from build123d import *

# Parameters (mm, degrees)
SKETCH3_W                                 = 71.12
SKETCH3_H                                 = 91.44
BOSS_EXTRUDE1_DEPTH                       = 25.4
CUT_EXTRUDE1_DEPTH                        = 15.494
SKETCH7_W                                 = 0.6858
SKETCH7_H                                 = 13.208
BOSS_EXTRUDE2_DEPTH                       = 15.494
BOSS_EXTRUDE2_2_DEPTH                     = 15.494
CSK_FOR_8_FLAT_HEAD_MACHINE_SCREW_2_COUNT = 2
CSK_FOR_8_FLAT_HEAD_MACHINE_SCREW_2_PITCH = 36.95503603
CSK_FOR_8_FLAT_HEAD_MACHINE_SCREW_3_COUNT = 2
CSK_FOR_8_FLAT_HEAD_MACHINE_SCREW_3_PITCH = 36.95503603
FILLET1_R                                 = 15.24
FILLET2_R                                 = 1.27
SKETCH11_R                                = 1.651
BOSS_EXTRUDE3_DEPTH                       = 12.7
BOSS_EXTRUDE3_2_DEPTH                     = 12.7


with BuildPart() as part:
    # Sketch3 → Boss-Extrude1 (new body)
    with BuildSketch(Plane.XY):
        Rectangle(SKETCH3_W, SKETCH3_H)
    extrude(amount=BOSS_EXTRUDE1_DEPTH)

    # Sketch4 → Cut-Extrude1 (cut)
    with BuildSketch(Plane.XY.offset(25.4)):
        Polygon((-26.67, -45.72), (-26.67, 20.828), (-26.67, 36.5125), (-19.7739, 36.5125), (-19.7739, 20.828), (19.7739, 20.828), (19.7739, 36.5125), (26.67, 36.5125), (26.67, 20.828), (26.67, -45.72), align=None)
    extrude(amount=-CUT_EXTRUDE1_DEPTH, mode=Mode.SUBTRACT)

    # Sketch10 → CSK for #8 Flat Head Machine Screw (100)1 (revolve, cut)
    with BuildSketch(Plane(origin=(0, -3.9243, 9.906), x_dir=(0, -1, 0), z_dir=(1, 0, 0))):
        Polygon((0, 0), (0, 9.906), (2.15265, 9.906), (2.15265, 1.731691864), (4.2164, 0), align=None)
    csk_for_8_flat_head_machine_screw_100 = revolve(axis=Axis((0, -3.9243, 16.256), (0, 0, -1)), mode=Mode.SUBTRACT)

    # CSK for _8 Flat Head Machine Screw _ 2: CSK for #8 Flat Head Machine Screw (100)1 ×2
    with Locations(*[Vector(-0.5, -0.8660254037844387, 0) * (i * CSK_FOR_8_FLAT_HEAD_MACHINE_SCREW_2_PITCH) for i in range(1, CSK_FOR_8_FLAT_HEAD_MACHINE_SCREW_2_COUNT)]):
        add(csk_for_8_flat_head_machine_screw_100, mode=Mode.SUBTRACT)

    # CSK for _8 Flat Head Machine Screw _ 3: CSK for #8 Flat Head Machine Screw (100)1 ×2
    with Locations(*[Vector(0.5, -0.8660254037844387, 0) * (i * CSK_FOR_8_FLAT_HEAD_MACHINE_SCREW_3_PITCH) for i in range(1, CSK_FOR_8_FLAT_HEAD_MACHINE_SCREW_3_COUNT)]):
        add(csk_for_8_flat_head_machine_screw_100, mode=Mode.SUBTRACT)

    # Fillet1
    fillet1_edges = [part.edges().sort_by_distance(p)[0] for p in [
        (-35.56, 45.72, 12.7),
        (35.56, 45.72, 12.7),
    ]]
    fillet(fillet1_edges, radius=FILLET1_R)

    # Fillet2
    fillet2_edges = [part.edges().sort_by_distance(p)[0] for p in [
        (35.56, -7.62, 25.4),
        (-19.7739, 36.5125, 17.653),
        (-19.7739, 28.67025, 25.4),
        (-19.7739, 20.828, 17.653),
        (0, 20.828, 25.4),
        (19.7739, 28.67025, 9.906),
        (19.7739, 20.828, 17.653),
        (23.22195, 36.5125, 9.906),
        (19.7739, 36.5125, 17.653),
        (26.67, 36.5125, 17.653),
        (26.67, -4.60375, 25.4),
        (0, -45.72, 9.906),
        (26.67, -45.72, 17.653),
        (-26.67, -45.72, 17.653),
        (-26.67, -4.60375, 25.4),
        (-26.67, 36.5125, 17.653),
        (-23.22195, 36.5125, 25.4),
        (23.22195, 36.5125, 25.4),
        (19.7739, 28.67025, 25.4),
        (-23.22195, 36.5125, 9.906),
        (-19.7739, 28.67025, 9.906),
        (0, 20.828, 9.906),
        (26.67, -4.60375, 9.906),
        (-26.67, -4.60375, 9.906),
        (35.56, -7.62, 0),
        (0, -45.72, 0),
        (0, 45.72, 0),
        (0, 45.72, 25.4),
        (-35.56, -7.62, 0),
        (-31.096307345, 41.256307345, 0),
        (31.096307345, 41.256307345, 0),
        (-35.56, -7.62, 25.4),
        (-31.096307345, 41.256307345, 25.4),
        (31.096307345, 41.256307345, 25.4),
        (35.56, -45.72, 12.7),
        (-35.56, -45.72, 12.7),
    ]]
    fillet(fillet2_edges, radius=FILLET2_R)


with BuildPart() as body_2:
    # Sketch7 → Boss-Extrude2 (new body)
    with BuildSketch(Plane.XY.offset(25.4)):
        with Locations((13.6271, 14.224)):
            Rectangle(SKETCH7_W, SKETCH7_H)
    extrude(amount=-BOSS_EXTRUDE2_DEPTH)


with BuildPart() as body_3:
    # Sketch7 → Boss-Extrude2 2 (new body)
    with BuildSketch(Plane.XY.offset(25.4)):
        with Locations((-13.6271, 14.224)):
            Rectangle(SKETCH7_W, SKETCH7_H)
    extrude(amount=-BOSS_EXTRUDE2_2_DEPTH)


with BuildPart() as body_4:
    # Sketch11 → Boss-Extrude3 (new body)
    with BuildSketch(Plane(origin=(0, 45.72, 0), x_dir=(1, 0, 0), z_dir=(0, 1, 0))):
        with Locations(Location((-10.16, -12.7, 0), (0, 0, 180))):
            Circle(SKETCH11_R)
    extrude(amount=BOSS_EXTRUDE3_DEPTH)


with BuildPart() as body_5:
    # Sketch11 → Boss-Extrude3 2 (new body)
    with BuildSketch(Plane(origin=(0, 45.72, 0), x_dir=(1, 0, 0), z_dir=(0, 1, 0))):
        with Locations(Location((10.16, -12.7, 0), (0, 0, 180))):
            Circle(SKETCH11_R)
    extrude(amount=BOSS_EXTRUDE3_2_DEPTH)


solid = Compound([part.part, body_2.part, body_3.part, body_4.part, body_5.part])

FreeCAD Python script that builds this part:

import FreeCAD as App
import Part
import Sketcher
Q = App.Units.Quantity


def edges_at(feature, points):
    """Names of the edges that pass closest to the given points."""
    edges = feature.Shape.Edges
    near = lambda p: min(range(len(edges)), key=lambda i: edges[i].distToShape(Part.Vertex(*p))[0])
    return sorted({f"Edge{near(p) + 1}" for p in points})

doc = App.newDocument("Part")
body = doc.addObject("PartDesign::Body", "Body")

# Sketch on XY plane
sketch1 = body.newObject("Sketcher::SketchObject", "Sketch")
sketch1.AttachmentSupport = (doc.getObject("XY_Plane"), [""])
sketch1.MapMode = "FlatFace"
sketch1.addGeometry([
    Part.LineSegment(App.Vector(-35.56, 45.72, 0), App.Vector(-35.56, -45.72, 0)),
    Part.LineSegment(App.Vector(-35.56, -45.72, 0), App.Vector(35.56, -45.72, 0)),
    Part.LineSegment(App.Vector(35.56, -45.72, 0), App.Vector(35.56, 45.72, 0)),
    Part.LineSegment(App.Vector(35.56, 45.72, 0), App.Vector(-35.56, 45.72, 0)),
], False)
sketch1.addConstraint([
    Sketcher.Constraint("Coincident", 0, 2, 1, 1),
    Sketcher.Constraint("Coincident", 1, 2, 2, 1),
    Sketcher.Constraint("Coincident", 2, 2, 3, 1),
    Sketcher.Constraint("Coincident", 3, 2, 0, 1),
    Sketcher.Constraint("Vertical", 0),
    Sketcher.Constraint("Horizontal", 1),
    Sketcher.Constraint("Vertical", 2),
    Sketcher.Constraint("Horizontal", 3),
    Sketcher.Constraint("Symmetric", 0, 2, 2, 2, -1, 1),
    Sketcher.Constraint("DistanceX", 1, 1, 1, 2, Q("2.8 in")),
    Sketcher.Constraint("DistanceY", 0, 2, 0, 1, Q("3.6 in")),
])
pad1 = body.newObject("PartDesign::Pad", "Pad")
pad1.Profile = sketch1
pad1.Length = Q("1 in")

# Sketch on XY plane
sketch2 = body.newObject("Sketcher::SketchObject", "Sketch001")
sketch2.AttachmentSupport = (doc.getObject("XY_Plane"), [""])
sketch2.MapMode = "FlatFace"
sketch2.AttachmentOffset = App.Placement(App.Vector(0, 0, 1 * 25.4), App.Rotation())
sketch2.addGeometry([
    Part.LineSegment(App.Vector(-26.67, 36.5125, 0), App.Vector(-26.67, -45.72, 0)),  # 0
    Part.LineSegment(App.Vector(-26.67, -45.72, 0), App.Vector(26.67, -45.72, 0)),  # 1
    Part.LineSegment(App.Vector(26.67, -45.72, 0), App.Vector(26.67, 36.5125, 0)),  # 2
    Part.LineSegment(App.Vector(26.67, 36.5125, 0), App.Vector(19.7739, 36.5125, 0)),  # 3
    Part.LineSegment(App.Vector(19.7739, 36.5125, 0), App.Vector(19.7739, 20.828, 0)),  # 4
    Part.LineSegment(App.Vector(19.7739, 20.828, 0), App.Vector(-19.7739, 20.828, 0)),  # 5
    Part.LineSegment(App.Vector(-19.7739, 20.828, 0), App.Vector(-19.7739, 36.5125, 0)),  # 6
    Part.LineSegment(App.Vector(-19.7739, 36.5125, 0), App.Vector(-26.67, 36.5125, 0)),  # 7
], False)
sketch2.addConstraint([
    Sketcher.Constraint("Coincident", 0, 2, 1, 1),
    Sketcher.Constraint("Coincident", 1, 2, 2, 1),
    Sketcher.Constraint("Coincident", 2, 2, 3, 1),
    Sketcher.Constraint("Coincident", 3, 2, 4, 1),
    Sketcher.Constraint("Coincident", 4, 2, 5, 1),
    Sketcher.Constraint("Coincident", 5, 2, 6, 1),
    Sketcher.Constraint("Coincident", 6, 2, 7, 1),
    Sketcher.Constraint("Coincident", 7, 2, 0, 1),
    Sketcher.Constraint("Vertical", 0),
    Sketcher.Constraint("Horizontal", 1),
    Sketcher.Constraint("Vertical", 2),
    Sketcher.Constraint("Horizontal", 3),
    Sketcher.Constraint("Vertical", 4),
    Sketcher.Constraint("Horizontal", 5),
    Sketcher.Constraint("Vertical", 6),
    Sketcher.Constraint("Horizontal", 7),
    Sketcher.Constraint("Symmetric", 3, 2, 6, 2, -2),
    Sketcher.Constraint("Equal", 3, 7),
    Sketcher.Constraint("DistanceX", 1, 1, 1, 2, Q("2.1 in")),
    Sketcher.Constraint("DistanceY", 0, 2, -1, 1, Q("1.8 in")),
    Sketcher.Constraint("DistanceX", 5, 2, 5, 1, Q("1.557 in")),
    Sketcher.Constraint("DistanceY", -1, 1, 4, 2, Q("0.82 in")),
    Sketcher.Constraint("DistanceY", 0, 2, 0, 1, Q("3.2375 in")),
])
pocket1 = body.newObject("PartDesign::Pocket", "Pocket")
pocket1.Profile = sketch2
pocket1.Length = Q("0.61 in")

# Sketch on YZ plane
sketch3 = body.newObject("Sketcher::SketchObject", "Sketch002")
sketch3.AttachmentSupport = (doc.getObject("YZ_Plane"), [""])
sketch3.MapMode = "FlatFace"
sketch3.addGeometry([
    Part.LineSegment(App.Vector(-3.9243, 0, 0), App.Vector(-3.9243, 9.906, 0)),  # 0
    Part.LineSegment(App.Vector(-3.9243, 9.906, 0), App.Vector(-8.1407, 9.906, 0)),  # 1
    Part.LineSegment(App.Vector(-8.1407, 9.906, 0), App.Vector(-6.07695, 8.174308, 0)),  # 2
    Part.LineSegment(App.Vector(-6.07695, 8.174308, 0), App.Vector(-6.07695, 0, 0)),  # 3
    Part.LineSegment(App.Vector(-6.07695, 0, 0), App.Vector(-3.9243, 0, 0)),  # 4
], False)
sketch3.addGeometry(Part.LineSegment(App.Vector(-3.9243, 9.906, 0), App.Vector(-3.9243, 0, 0)), True)  # axis
sketch3.addConstraint([
    Sketcher.Constraint("Coincident", 0, 2, 1, 1),
    Sketcher.Constraint("Coincident", 1, 2, 2, 1),
    Sketcher.Constraint("Coincident", 2, 2, 3, 1),
    Sketcher.Constraint("Coincident", 3, 2, 4, 1),
    Sketcher.Constraint("Coincident", 4, 2, 0, 1),
    Sketcher.Constraint("Vertical", 0),
    Sketcher.Constraint("Horizontal", 1),
    Sketcher.Constraint("Vertical", 3),
    Sketcher.Constraint("Horizontal", 4),
    Sketcher.Constraint("Vertical", 5),
    Sketcher.Constraint("Coincident", 5, 1, 0, 2),
    Sketcher.Constraint("PointOnObject", 3, 2, -1),
    Sketcher.Constraint("PointOnObject", 5, 2, -1),
    Sketcher.Constraint("Angle", 2, Q("-40 deg")),
    Sketcher.Constraint("DistanceY", 0, 1, 0, 2, Q("0.39 in")),
    Sketcher.Constraint("DistanceX", 1, 2, 1, 1, Q("0.166 in")),
    Sketcher.Constraint("DistanceX", 0, 2, -1, 1, Q("0.1545 in")),
    Sketcher.Constraint("DistanceX", 4, 1, 4, 2, Q("2.15265 mm")),
])
groove = body.newObject("PartDesign::Groove", "Groove")
groove.Profile = sketch3
groove.ReferenceAxis = (sketch3, ["Axis0"])
groove.Angle = 360
doc.recompute()

datumline = body.newObject("PartDesign::Line", "DatumLine")
datumline.Placement = App.Placement(App.Vector(0, 0, 0), App.Rotation(App.Vector(0, 0, 1), App.Vector(-0.5, -0.866025404, 0)))
linearpattern = body.newObject("PartDesign::LinearPattern", "LinearPattern")
linearpattern.Originals = [groove]
linearpattern.Direction = (datumline, [""])
linearpattern.Mode = "offset"
linearpattern.Offset = 36.955036
linearpattern.Occurrences = 2
body.Tip = linearpattern
doc.recompute()

datumline2 = body.newObject("PartDesign::Line", "DatumLine001")
datumline2.Placement = App.Placement(App.Vector(0, 0, 0), App.Rotation(App.Vector(0, 0, 1), App.Vector(0.5, -0.866025404, 0)))
linearpattern2 = body.newObject("PartDesign::LinearPattern", "LinearPattern001")
linearpattern2.Originals = [groove]
linearpattern2.Direction = (datumline2, [""])
linearpattern2.Mode = "offset"
linearpattern2.Offset = 36.955036
linearpattern2.Occurrences = 2
body.Tip = linearpattern2
doc.recompute()

fillet = body.newObject("PartDesign::Fillet", "Fillet")
fillet.Base = (linearpattern2, edges_at(linearpattern2, [(-35.56, 45.72, 12.7), (35.56, 45.72, 12.7)]))
fillet.Radius = Q("0.6 in")
doc.recompute()

fillet2 = body.newObject("PartDesign::Fillet", "Fillet001")
fillet2.Base = (fillet, edges_at(fillet, [
    (35.56, -7.62, 25.4),
    (-19.774, 36.513, 17.653),
    (-19.774, 28.67, 25.4),
    (-19.774, 20.828, 17.653),
    (0, 20.828, 25.4),
    (19.774, 28.67, 9.906),
    (19.774, 20.828, 17.653),
    (23.222, 36.513, 9.906),
    (19.774, 36.513, 17.653),
    (26.67, 36.513, 17.653),
    (26.67, -4.604, 25.4),
    (0, -45.72, 9.906),
    (26.67, -45.72, 17.653),
    (-26.67, -45.72, 17.653),
    (-26.67, -4.604, 25.4),
    (-26.67, 36.513, 17.653),
    (-23.222, 36.513, 25.4),
    (23.222, 36.513, 25.4),
    (19.774, 28.67, 25.4),
    (-23.222, 36.513, 9.906),
    (-19.774, 28.67, 9.906),
    (0, 20.828, 9.906),
    (26.67, -4.604, 9.906),
    (-26.67, -4.604, 9.906),
    (35.56, -7.62, 0),
    (0, -45.72, 0),
    (0, 45.72, 0),
    (0, 45.72, 25.4),
    (-35.56, -7.62, 0),
    (-31.096, 41.256, 0),
    (31.096, 41.256, 0),
    (-35.56, -7.62, 25.4),
    (-31.096, 41.256, 25.4),
    (31.096, 41.256, 25.4),
    (35.56, -45.72, 12.7),
    (-35.56, -45.72, 12.7),
]))
fillet2.Radius = Q("0.05 in")
body2 = doc.addObject("PartDesign::Body", "Body001")

# Sketch on XY plane
sketch4 = body2.newObject("Sketcher::SketchObject", "Sketch003")
sketch4.AttachmentSupport = (doc.getObject("XY_Plane001"), [""])
sketch4.MapMode = "FlatFace"
sketch4.AttachmentOffset = App.Placement(App.Vector(0, 0, 1 * 25.4), App.Rotation())
sketch4.addGeometry([
    Part.LineSegment(App.Vector(13.2842, 20.828, 0), App.Vector(13.2842, 7.62, 0)),
    Part.LineSegment(App.Vector(13.2842, 7.62, 0), App.Vector(13.97, 7.62, 0)),
    Part.LineSegment(App.Vector(13.97, 7.62, 0), App.Vector(13.97, 20.828, 0)),
    Part.LineSegment(App.Vector(13.97, 20.828, 0), App.Vector(13.2842, 20.828, 0)),
], False)
sketch4.addConstraint([
    Sketcher.Constraint("Coincident", 0, 2, 1, 1),
    Sketcher.Constraint("Coincident", 1, 2, 2, 1),
    Sketcher.Constraint("Coincident", 2, 2, 3, 1),
    Sketcher.Constraint("Coincident", 3, 2, 0, 1),
    Sketcher.Constraint("Vertical", 0),
    Sketcher.Constraint("Horizontal", 1),
    Sketcher.Constraint("Vertical", 2),
    Sketcher.Constraint("Horizontal", 3),
    Sketcher.Constraint("DistanceY", 0, 2, 0, 1, Q("0.52 in")),
    Sketcher.Constraint("DistanceY", -1, 1, 0, 2, Q("0.3 in")),
    Sketcher.Constraint("DistanceX", 1, 1, 1, 2, Q("0.027 in")),
    Sketcher.Constraint("DistanceX", -1, 1, 1, 2, Q("0.55 in")),
])
pad2 = body2.newObject("PartDesign::Pad", "Pad001")
pad2.Profile = sketch4
pad2.Length = Q("0.61 in")
pad2.Reversed = True
body3 = doc.addObject("PartDesign::Body", "Body002")

# Sketch on XY plane
sketch5 = body3.newObject("Sketcher::SketchObject", "Sketch004")
sketch5.AttachmentSupport = (doc.getObject("XY_Plane002"), [""])
sketch5.MapMode = "FlatFace"
sketch5.AttachmentOffset = App.Placement(App.Vector(0, 0, 1 * 25.4), App.Rotation())
sketch5.addGeometry([
    Part.LineSegment(App.Vector(-13.97, 20.828, 0), App.Vector(-13.97, 7.62, 0)),
    Part.LineSegment(App.Vector(-13.97, 7.62, 0), App.Vector(-13.2842, 7.62, 0)),
    Part.LineSegment(App.Vector(-13.2842, 7.62, 0), App.Vector(-13.2842, 20.828, 0)),
    Part.LineSegment(App.Vector(-13.2842, 20.828, 0), App.Vector(-13.97, 20.828, 0)),
], False)
sketch5.addConstraint([
    Sketcher.Constraint("Coincident", 0, 2, 1, 1),
    Sketcher.Constraint("Coincident", 1, 2, 2, 1),
    Sketcher.Constraint("Coincident", 2, 2, 3, 1),
    Sketcher.Constraint("Coincident", 3, 2, 0, 1),
    Sketcher.Constraint("Vertical", 0),
    Sketcher.Constraint("Horizontal", 1),
    Sketcher.Constraint("Vertical", 2),
    Sketcher.Constraint("Horizontal", 3),
    Sketcher.Constraint("DistanceY", 0, 2, 0, 1, Q("0.52 in")),
    Sketcher.Constraint("DistanceY", -1, 1, 0, 2, Q("0.3 in")),
    Sketcher.Constraint("DistanceX", 1, 1, 1, 2, Q("0.027 in")),
    Sketcher.Constraint("DistanceX", 0, 2, -1, 1, Q("0.55 in")),
])
pad3 = body3.newObject("PartDesign::Pad", "Pad002")
pad3.Profile = sketch5
pad3.Length = Q("0.61 in")
pad3.Reversed = True
body4 = doc.addObject("PartDesign::Body", "Body003")

# Sketch on XZ plane
sketch6 = body4.newObject("Sketcher::SketchObject", "Sketch005")
sketch6.AttachmentSupport = (doc.getObject("XZ_Plane003"), [""])
sketch6.MapMode = "FlatFace"
sketch6.AttachmentOffset = App.Placement(App.Vector(0, 0, -1.8 * 25.4), App.Rotation())
sketch6.addGeometry(Part.Circle(App.Vector(-10.16, 12.7, 0), App.Vector(0, 0, 1), 1.651), False)
sketch6.addConstraint([
    Sketcher.Constraint("Diameter", 0, Q("0.13 in")),
    Sketcher.Constraint("DistanceX", 0, 3, -1, 1, Q("0.4 in")),
    Sketcher.Constraint("DistanceY", -1, 1, 0, 3, Q("0.5 in")),
])
pad4 = body4.newObject("PartDesign::Pad", "Pad003")
pad4.Profile = sketch6
pad4.Length = Q("0.5 in")
pad4.Reversed = True
body5 = doc.addObject("PartDesign::Body", "Body004")

# Sketch on XZ plane
sketch7 = body5.newObject("Sketcher::SketchObject", "Sketch006")
sketch7.AttachmentSupport = (doc.getObject("XZ_Plane004"), [""])
sketch7.MapMode = "FlatFace"
sketch7.AttachmentOffset = App.Placement(App.Vector(0, 0, -1.8 * 25.4), App.Rotation())
sketch7.addGeometry(Part.Circle(App.Vector(10.16, 12.7, 0), App.Vector(0, 0, 1), 1.651), False)
sketch7.addConstraint([
    Sketcher.Constraint("Diameter", 0, Q("0.13 in")),
    Sketcher.Constraint("DistanceX", -1, 1, 0, 3, Q("0.4 in")),
    Sketcher.Constraint("DistanceY", -1, 1, 0, 3, Q("0.5 in")),
])
pad5 = body5.newObject("PartDesign::Pad", "Pad004")
pad5.Profile = sketch7
pad5.Length = Q("0.5 in")
pad5.Reversed = True

doc.recompute()
